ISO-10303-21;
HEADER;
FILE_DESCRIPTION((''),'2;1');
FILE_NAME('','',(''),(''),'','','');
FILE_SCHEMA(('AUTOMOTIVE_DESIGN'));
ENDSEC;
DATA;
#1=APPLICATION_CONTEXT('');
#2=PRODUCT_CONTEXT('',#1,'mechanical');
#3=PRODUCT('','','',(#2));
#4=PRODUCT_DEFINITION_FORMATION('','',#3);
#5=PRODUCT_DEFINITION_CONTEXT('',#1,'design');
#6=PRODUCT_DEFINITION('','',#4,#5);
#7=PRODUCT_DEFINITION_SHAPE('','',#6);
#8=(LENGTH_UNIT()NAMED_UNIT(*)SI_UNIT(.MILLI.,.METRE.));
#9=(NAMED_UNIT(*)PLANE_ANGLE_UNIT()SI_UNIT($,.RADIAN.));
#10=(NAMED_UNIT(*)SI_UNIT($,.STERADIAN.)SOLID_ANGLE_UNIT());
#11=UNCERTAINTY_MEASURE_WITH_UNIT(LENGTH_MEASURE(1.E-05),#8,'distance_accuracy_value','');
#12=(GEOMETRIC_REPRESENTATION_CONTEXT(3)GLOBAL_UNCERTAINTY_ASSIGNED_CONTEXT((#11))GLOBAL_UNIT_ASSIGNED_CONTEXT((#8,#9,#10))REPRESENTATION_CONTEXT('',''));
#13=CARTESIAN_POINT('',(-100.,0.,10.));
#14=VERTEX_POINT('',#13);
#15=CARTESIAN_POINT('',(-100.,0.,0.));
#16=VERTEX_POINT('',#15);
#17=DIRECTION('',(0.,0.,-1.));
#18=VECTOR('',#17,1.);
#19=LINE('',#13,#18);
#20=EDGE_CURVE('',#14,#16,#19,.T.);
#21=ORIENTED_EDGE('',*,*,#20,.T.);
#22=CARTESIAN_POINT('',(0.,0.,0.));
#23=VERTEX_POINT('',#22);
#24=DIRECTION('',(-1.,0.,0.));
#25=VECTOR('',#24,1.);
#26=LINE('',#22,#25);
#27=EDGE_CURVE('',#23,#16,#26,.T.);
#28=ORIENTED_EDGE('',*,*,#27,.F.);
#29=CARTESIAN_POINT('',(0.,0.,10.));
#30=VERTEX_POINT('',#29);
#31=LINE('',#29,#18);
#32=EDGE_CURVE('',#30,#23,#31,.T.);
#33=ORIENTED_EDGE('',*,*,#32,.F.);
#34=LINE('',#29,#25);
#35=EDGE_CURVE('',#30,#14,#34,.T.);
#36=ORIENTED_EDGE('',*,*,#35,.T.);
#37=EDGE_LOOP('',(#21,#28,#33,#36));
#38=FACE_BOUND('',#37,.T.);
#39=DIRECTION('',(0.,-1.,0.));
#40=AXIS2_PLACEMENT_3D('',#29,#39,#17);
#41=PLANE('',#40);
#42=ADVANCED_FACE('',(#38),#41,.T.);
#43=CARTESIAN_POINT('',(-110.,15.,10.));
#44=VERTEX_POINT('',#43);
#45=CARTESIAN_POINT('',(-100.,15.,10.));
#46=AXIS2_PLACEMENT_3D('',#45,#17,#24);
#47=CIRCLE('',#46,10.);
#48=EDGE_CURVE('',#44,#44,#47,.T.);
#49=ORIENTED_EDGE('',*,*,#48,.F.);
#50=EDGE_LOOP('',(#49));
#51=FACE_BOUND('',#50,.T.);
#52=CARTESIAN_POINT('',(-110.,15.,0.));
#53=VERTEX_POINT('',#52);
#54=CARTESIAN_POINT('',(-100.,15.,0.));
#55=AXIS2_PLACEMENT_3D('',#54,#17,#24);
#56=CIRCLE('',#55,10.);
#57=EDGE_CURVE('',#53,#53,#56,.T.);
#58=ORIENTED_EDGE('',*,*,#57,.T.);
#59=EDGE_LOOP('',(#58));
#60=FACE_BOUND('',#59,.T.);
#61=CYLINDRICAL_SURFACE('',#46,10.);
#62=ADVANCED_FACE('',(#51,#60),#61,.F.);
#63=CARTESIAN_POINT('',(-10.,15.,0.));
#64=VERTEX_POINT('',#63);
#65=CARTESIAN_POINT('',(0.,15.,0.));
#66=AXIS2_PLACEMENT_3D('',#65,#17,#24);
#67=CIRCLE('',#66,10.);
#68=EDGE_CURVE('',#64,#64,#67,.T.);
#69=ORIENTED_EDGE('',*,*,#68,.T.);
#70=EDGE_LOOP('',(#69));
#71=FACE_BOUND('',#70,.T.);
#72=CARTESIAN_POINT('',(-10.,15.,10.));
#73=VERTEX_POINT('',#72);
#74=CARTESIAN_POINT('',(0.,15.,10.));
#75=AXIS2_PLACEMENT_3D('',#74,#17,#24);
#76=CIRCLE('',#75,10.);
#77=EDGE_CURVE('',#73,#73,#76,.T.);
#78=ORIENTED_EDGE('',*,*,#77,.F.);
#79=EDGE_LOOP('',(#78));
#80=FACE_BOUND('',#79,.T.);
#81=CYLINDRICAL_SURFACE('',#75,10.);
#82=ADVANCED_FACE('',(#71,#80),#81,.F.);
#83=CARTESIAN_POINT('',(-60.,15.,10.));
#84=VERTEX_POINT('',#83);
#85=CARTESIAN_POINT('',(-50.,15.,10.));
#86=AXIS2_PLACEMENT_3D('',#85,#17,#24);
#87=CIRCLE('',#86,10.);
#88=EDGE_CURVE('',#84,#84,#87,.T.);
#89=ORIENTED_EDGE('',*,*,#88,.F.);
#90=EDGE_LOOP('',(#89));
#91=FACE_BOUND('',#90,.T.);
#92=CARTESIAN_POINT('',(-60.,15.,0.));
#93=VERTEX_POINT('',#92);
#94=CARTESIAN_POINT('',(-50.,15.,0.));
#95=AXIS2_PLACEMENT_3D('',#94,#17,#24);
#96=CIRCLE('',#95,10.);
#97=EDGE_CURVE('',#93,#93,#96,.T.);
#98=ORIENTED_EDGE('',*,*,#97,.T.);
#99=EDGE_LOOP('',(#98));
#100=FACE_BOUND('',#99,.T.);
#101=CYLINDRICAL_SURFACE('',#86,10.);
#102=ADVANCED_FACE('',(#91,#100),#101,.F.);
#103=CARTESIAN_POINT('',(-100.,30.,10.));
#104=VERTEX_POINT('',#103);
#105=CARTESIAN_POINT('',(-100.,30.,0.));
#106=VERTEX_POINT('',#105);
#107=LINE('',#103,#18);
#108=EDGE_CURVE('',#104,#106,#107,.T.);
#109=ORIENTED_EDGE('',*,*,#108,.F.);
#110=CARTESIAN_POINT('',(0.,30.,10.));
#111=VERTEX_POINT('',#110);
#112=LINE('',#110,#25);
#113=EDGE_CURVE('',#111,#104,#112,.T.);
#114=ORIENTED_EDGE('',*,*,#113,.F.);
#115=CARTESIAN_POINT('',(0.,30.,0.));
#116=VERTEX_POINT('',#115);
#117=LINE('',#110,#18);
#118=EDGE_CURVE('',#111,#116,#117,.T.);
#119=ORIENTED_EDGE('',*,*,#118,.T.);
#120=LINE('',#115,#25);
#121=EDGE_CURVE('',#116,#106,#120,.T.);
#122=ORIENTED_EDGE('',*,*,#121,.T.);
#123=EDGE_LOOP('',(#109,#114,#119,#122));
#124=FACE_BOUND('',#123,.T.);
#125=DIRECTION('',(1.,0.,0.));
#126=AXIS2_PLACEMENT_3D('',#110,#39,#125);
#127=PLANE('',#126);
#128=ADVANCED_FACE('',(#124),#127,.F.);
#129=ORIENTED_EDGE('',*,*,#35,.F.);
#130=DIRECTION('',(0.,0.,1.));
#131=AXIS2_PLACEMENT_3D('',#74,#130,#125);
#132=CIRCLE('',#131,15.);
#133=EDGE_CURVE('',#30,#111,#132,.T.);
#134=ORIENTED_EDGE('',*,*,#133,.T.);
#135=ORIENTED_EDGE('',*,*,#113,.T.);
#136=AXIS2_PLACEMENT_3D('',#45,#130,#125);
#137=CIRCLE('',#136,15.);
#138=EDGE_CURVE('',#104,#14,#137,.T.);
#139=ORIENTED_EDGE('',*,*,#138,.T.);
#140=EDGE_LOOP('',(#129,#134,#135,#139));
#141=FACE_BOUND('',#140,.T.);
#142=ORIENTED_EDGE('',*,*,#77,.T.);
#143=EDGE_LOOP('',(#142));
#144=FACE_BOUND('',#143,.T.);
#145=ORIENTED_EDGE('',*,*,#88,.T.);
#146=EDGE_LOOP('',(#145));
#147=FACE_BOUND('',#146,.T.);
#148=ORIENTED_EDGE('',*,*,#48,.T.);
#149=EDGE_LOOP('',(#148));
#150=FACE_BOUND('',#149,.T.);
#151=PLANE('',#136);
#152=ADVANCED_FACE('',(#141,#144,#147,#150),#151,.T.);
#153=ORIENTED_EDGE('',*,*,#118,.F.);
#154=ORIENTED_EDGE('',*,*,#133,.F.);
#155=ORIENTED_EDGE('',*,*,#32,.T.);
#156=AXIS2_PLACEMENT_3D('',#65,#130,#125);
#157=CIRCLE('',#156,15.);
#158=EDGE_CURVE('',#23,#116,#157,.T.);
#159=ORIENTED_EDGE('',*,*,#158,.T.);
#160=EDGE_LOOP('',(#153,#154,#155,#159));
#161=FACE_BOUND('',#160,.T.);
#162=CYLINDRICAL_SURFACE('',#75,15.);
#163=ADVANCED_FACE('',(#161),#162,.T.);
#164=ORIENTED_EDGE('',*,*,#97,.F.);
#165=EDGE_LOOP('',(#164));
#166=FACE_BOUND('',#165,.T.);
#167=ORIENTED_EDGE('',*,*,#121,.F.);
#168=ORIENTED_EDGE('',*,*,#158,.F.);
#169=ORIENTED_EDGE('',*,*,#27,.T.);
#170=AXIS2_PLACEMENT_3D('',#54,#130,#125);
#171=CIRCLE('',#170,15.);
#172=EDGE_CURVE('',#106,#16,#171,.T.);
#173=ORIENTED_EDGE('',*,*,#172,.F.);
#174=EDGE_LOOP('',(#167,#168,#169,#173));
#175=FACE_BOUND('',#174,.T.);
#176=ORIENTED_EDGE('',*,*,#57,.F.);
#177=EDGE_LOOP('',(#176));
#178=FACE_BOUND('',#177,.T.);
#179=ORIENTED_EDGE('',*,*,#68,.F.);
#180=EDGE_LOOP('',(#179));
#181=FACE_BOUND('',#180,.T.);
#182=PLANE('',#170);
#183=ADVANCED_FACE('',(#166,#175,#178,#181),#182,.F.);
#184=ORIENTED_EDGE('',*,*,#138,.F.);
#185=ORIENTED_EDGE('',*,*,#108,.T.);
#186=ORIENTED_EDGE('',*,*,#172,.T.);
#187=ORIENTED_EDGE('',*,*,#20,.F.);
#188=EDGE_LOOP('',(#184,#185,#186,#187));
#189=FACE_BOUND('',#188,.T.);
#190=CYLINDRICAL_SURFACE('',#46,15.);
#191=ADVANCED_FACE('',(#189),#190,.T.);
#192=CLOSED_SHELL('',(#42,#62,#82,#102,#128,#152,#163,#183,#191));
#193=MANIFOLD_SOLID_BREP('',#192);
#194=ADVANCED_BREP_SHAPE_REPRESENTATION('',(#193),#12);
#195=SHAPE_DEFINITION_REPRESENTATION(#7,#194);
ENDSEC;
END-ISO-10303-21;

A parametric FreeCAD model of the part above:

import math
import FreeCAD as App
import Part
import Sketcher
Q = App.Units.Quantity

doc = App.newDocument("Part")
body = doc.addObject("PartDesign::Body", "Body")

sketch1 = body.newObject("Sketcher::SketchObject", "Sketch")
sketch1.AttachmentSupport = (doc.getObject("XY_Plane"), [""])
sketch1.MapMode = "FlatFace"
sketch1.addGeometry([
    Part.LineSegment(App.Vector(-100, 0, 0), App.Vector(0, 0, 0)),
    Part.ArcOfCircle(Part.Circle(App.Vector(0, 15, 0), App.Vector(0, 0, 1), 15), math.radians(-90), math.radians(90)),
    Part.LineSegment(App.Vector(0, 30, 0), App.Vector(-100, 30, 0)),
    Part.ArcOfCircle(Part.Circle(App.Vector(-100, 15, 0), App.Vector(0, 0, 1), 15), math.radians(90), math.radians(270)),
], False)
sketch1.addConstraint([
    Sketcher.Constraint("Tangent", 0, 2, 1, 1),
    Sketcher.Constraint("Tangent", 1, 2, 2, 1),
    Sketcher.Constraint("Tangent", 2, 2, 3, 1),
    Sketcher.Constraint("Tangent", 3, 2, 0, 1),
    Sketcher.Constraint("Horizontal", 0),
    Sketcher.Constraint("Horizontal", 2),
    Sketcher.Constraint("Coincident", 0, 2, -1, 1),
    Sketcher.Constraint("Radius", 1, Q("15 mm")),
    Sketcher.Constraint("DistanceX", 0, 1, 0, 2, Q("100 mm")),
])
pad1 = body.newObject("PartDesign::Pad", "Pad")
pad1.Profile = sketch1
pad1.Length = 10

sketch2 = body.newObject("Sketcher::SketchObject", "Sketch001")
sketch2.AttachmentSupport = (doc.getObject("XY_Plane"), [""])
sketch2.MapMode = "FlatFace"
sketch2.addGeometry([
    Part.Circle(App.Vector(0, 15, 0), App.Vector(0, 0, 1), 10),
    Part.Circle(App.Vector(-100, 15, 0), App.Vector(0, 0, 1), 10),
], False)
sketch2.addConstraint([
    Sketcher.Constraint("Equal", 0, 1),
    Sketcher.Constraint("PointOnObject", 0, 3, -2),
    Sketcher.Constraint("Horizontal", 0, 3, 1, 3),
    Sketcher.Constraint("Diameter", 0, Q("20 mm")),
    Sketcher.Constraint("DistanceY", -1, 1, 0, 3, Q("15 mm")),
    Sketcher.Constraint("DistanceX", 1, 3, -1, 1, Q("100 mm")),
])
pocket1 = body.newObject("PartDesign::Pocket", "Pocket")
pocket1.Profile = sketch2
pocket1.Length = 10
pocket1.Reversed = True

sketch3 = body.newObject("Sketcher::SketchObject", "Sketch002")
sketch3.AttachmentSupport = (doc.getObject("XY_Plane"), [""])
sketch3.MapMode = "FlatFace"
sketch3.addGeometry(Part.Circle(App.Vector(-50, 15, 0), App.Vector(0, 0, 1), 10), False)
sketch3.addConstraint([
    Sketcher.Constraint("Diameter", 0, Q("20 mm")),
    Sketcher.Constraint("DistanceX", 0, 3, -1, 1, Q("50 mm")),
    Sketcher.Constraint("DistanceY", -1, 1, 0, 3, Q("15 mm")),
])
pocket2 = body.newObject("PartDesign::Pocket", "Pocket001")
pocket2.Profile = sketch3
pocket2.Length = 10
pocket2.Reversed = True

doc.recompute()
